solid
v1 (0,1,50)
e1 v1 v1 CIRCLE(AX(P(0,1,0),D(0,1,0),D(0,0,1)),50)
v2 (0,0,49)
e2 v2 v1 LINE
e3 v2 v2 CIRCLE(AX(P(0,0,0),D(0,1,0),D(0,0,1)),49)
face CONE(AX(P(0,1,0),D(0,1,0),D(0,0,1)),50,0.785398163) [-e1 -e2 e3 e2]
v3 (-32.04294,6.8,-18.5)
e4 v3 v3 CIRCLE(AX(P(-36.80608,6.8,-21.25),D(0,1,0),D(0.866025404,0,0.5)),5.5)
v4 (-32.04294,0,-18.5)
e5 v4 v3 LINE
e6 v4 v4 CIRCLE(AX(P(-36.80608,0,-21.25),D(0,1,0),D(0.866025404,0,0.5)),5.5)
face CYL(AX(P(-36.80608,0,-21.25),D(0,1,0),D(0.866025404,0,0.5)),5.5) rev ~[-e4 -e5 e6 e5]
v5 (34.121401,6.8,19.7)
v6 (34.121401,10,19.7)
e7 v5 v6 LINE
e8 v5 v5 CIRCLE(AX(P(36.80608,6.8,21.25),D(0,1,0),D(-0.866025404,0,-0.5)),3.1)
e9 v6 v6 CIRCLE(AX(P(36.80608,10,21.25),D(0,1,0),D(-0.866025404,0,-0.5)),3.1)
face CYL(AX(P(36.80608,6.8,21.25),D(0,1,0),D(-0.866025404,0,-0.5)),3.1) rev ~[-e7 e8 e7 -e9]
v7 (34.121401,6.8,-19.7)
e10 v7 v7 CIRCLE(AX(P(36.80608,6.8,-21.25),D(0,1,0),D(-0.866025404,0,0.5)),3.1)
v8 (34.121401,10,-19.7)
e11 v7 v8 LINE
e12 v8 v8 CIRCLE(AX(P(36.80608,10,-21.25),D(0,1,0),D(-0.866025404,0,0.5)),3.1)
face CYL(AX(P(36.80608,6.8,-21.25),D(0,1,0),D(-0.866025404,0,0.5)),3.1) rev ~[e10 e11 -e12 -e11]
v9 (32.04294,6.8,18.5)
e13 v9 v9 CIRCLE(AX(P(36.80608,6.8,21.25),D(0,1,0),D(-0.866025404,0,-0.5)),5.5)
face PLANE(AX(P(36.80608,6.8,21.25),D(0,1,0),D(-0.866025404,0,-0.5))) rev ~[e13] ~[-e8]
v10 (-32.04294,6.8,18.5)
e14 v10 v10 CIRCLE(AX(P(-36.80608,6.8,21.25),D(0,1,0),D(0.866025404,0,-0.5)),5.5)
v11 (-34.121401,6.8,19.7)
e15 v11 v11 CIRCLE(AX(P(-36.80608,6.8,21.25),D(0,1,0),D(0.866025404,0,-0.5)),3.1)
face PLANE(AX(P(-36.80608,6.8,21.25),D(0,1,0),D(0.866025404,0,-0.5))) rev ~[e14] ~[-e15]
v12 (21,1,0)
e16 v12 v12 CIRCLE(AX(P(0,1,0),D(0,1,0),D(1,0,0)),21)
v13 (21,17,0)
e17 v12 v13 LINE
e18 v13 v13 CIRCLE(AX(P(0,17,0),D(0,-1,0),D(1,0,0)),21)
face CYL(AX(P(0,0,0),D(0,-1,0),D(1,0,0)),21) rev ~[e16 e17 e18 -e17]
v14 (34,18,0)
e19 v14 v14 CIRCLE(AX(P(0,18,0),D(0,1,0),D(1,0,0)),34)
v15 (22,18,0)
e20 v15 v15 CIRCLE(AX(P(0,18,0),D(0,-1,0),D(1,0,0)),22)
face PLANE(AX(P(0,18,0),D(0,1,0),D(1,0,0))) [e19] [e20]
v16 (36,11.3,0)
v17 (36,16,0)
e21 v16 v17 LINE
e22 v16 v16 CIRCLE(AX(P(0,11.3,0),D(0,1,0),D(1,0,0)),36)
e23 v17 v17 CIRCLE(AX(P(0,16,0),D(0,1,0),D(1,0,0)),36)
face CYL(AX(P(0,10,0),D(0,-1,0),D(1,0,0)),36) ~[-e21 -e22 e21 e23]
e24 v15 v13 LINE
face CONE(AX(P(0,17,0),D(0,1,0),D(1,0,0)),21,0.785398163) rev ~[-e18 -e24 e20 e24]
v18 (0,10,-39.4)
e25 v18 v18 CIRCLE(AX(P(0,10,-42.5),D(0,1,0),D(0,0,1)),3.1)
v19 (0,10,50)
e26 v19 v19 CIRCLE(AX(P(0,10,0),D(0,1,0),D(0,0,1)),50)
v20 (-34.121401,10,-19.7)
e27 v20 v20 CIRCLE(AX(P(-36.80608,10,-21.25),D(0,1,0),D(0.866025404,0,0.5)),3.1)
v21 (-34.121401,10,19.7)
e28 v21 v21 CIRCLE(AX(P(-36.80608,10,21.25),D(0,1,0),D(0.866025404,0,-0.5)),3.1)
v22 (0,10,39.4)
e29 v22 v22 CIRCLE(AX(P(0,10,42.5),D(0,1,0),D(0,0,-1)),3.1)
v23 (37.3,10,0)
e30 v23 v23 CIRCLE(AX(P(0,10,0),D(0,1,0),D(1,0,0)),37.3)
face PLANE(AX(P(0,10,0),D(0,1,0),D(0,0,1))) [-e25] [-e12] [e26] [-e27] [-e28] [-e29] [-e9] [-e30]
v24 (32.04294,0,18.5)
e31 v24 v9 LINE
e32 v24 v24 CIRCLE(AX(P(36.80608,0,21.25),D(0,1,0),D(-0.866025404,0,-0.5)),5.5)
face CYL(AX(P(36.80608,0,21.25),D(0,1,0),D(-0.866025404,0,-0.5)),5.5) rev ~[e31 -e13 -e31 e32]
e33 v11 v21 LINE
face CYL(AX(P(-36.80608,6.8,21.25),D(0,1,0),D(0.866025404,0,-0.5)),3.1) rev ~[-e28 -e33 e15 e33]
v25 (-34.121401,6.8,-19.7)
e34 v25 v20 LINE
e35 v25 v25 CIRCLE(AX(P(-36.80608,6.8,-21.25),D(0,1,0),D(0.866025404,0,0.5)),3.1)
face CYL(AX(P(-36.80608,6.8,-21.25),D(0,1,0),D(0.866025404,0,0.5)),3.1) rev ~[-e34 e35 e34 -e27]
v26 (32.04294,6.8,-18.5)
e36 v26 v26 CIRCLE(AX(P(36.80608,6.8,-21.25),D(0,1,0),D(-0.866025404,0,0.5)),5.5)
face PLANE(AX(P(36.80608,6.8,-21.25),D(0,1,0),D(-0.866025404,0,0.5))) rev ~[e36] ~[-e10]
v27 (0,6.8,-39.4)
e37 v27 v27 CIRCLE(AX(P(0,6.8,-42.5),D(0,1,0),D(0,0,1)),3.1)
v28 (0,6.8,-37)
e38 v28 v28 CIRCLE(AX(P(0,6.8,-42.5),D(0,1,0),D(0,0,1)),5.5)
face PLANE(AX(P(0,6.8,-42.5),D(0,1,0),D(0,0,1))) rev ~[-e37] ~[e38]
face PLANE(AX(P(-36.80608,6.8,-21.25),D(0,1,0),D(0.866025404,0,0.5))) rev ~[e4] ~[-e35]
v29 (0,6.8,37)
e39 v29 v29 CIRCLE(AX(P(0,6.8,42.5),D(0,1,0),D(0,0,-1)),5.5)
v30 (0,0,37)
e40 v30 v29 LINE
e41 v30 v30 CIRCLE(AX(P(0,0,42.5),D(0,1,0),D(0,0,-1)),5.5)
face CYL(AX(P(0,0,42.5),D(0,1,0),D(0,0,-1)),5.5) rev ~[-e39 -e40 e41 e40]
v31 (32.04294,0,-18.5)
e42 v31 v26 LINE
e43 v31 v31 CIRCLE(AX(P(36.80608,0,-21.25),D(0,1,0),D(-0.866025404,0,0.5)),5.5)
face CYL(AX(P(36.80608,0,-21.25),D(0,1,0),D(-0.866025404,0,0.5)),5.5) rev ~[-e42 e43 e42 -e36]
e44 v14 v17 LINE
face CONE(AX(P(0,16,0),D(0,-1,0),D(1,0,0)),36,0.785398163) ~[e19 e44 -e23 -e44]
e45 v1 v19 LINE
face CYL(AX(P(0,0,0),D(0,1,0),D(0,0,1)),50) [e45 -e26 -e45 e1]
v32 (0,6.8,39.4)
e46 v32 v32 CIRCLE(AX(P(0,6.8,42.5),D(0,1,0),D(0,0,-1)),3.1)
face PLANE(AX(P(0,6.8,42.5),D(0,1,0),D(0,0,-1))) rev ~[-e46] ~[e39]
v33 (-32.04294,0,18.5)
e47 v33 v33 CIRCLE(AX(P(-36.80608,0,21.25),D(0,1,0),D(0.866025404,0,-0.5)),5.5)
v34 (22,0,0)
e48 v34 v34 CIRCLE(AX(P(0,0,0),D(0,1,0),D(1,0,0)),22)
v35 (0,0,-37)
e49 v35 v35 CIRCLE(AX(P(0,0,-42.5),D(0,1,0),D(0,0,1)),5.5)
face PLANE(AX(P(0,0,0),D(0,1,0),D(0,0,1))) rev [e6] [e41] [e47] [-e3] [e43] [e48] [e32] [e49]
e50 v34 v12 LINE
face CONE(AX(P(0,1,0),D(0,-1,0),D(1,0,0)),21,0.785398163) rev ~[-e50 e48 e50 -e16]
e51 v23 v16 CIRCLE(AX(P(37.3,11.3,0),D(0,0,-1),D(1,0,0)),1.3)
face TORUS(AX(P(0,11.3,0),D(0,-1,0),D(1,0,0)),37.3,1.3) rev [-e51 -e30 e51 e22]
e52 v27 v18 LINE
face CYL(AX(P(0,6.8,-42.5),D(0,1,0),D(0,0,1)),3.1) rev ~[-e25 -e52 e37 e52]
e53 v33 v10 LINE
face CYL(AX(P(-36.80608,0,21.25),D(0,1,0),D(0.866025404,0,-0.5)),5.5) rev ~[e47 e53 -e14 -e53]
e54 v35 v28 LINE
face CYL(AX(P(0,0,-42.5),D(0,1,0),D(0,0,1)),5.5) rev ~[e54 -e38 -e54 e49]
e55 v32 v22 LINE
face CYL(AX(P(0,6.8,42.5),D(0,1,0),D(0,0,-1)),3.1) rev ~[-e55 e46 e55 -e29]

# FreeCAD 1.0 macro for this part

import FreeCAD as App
import Part
import Sketcher

V = App.Vector
Q = App.Units.Quantity


def edges_at(feature, points):
    """Names of the edges that pass closest to the given points."""
    edges = feature.Shape.Edges
    near = lambda p: min(range(len(edges)), key=lambda i: edges[i].distToShape(Part.Vertex(*p))[0])
    return sorted({f"Edge{near(p) + 1}" for p in points})

doc = App.newDocument("Part")
body = doc.addObject("PartDesign::Body", "Body")

sketch1 = body.newObject("Sketcher::SketchObject", "Sketch")
sketch1.AttachmentSupport = (doc.getObject("XY_Plane"), [""])
sketch1.MapMode = "FlatFace"
sketch1.addGeometry([
    Part.LineSegment(V(16, 5, 0), V(0, 5, 0)),
    Part.LineSegment(V(0, 5, 0), V(0, 0, 0)),
    Part.LineSegment(V(0, 0, 0), V(36, 0, 0)),
    Part.LineSegment(V(36, 0, 0), V(36, 10, 0)),
    Part.LineSegment(V(36, 10, 0), V(16, 10, 0)),
    Part.LineSegment(V(16, 10, 0), V(16, 5, 0)),
], False)
sketch1.addConstraint([
    Sketcher.Constraint("Coincident", 0, 2, 1, 1),
    Sketcher.Constraint("Coincident", 1, 2, 2, 1),
    Sketcher.Constraint("Coincident", 2, 2, 3, 1),
    Sketcher.Constraint("Coincident", 3, 2, 4, 1),
    Sketcher.Constraint("Coincident", 4, 2, 5, 1),
    Sketcher.Constraint("Coincident", 5, 2, 0, 1),
    Sketcher.Constraint("Horizontal", 0),
    Sketcher.Constraint("Vertical", 1),
    Sketcher.Constraint("Horizontal", 2),
    Sketcher.Constraint("Vertical", 3),
    Sketcher.Constraint("Horizontal", 4),
    Sketcher.Constraint("Vertical", 5),
    Sketcher.Constraint("Coincident", 1, 2, -1, 1),
    Sketcher.Constraint("Equal", 1, 5),
    Sketcher.Constraint("DistanceX", 2, 1, 2, 2, Q("36 mm")),
    Sketcher.Constraint("DistanceX", 4, 2, 4, 1, Q("20 mm")),
    Sketcher.Constraint("DistanceY", 1, 2, 1, 1, Q("5 mm")),
])
revolution = body.newObject("PartDesign::Revolution", "Revolution")
revolution.Profile = sketch1
revolution.ReferenceAxis = (sketch1, ["V_Axis"])
revolution.Angle = 360

sketch2 = body.newObject("Sketcher::SketchObject", "Sketch001")
sketch2.AttachmentSupport = (doc.getObject("YZ_Plane"), [""])
sketch2.MapMode = "FlatFace"
sketch2.addGeometry([
    Part.LineSegment(V(0, 0, 0), V(10, 0, 0)),
    Part.LineSegment(V(10, 0, 0), V(10, 50, 0)),
    Part.LineSegment(V(10, 50, 0), V(0, 50, 0)),
    Part.LineSegment(V(0, 50, 0), V(0, 0, 0)),
], False)
sketch2.addConstraint([
    Sketcher.Constraint("Coincident", 0, 2, 1, 1),
    Sketcher.Constraint("Coincident", 1, 2, 2, 1),
    Sketcher.Constraint("Coincident", 2, 2, 3, 1),
    Sketcher.Constraint("Coincident", 3, 2, 0, 1),
    Sketcher.Constraint("Horizontal", 0),
    Sketcher.Constraint("Vertical", 1),
    Sketcher.Constraint("Horizontal", 2),
    Sketcher.Constraint("Vertical", 3),
    Sketcher.Constraint("Coincident", 3, 2, -1, 1),
    Sketcher.Constraint("DistanceX", 0, 1, 0, 2, Q("10 mm")),
    Sketcher.Constraint("DistanceY", 1, 1, 1, 2, Q("50 mm")),
])
revolution2 = body.newObject("PartDesign::Revolution", "Revolution001")
revolution2.Profile = sketch2
revolution2.ReferenceAxis = (sketch2, ["H_Axis"])
revolution2.Angle = 360
doc.recompute()

chamfer = body.newObject("PartDesign::Chamfer", "Chamfer")
chamfer.Base = (revolution2, edges_at(revolution2, [(0, 0, -50)]))
chamfer.Size = 1

sketch3 = body.newObject("Sketcher::SketchObject", "Sketch002")
sketch3.AttachmentSupport = (doc.getObject("XZ_Plane"), [""])
sketch3.MapMode = "FlatFace"
sketch3.addGeometry(Part.Circle(V(0, 42.5, 0), V(0, 0, 1), 3.1), False)
sketch3.addConstraint([
    Sketcher.Constraint("PointOnObject", 0, 3, -2),
    Sketcher.Constraint("Diameter", 0, Q("6.2 mm")),
    Sketcher.Constraint("DistanceY", -1, 1, 0, 3, Q("42.5 mm")),
])
doc.recompute()
hole = body.newObject("PartDesign::Hole", "Hole")
hole.Profile = sketch3
hole.ThreadType = "None"
hole.Diameter = 6.2
hole.DepthType = "Dimension"
hole.Depth = 15
hole.DrillPoint = "Angled"
hole.DrillPointAngle = 118
hole.HoleCutType = "Counterbore"
hole.HoleCutDiameter = 11
hole.HoleCutDepth = 6.8
doc.recompute()

polarpattern = body.newObject("PartDesign::PolarPattern", "PolarPattern")
polarpattern.Originals = [hole]
polarpattern.Axis = (doc.getObject("Y_Axis"), [""])
polarpattern.Angle = 360
polarpattern.Occurrences = 6
body.Tip = polarpattern

sketch4 = body.newObject("Sketcher::SketchObject", "Sketch003")
sketch4.AttachmentSupport = (doc.getObject("XZ_Plane"), [""])
sketch4.MapMode = "FlatFace"
sketch4.AttachmentOffset = App.Placement(V(0, 0, -10), App.Rotation())
sketch4.addGeometry([
    Part.Circle(V(0, 0, 0), V(0, 0, 1), 36),
    Part.Circle(V(0, 0, 0), V(0, 0, 1), 16),
], False)
sketch4.addConstraint([
    Sketcher.Constraint("Coincident", 0, 3, -1, 1),
    Sketcher.Constraint("Coincident", 1, 3, -1, 1),
    Sketcher.Constraint("Diameter", 0, Q("72 mm")),
    Sketcher.Constraint("Diameter", 1, Q("32 mm")),
])
pad1 = body.newObject("PartDesign::Pad", "Pad")
pad1.Profile = sketch4
pad1.Length = 8
pad1.Reversed = True
doc.recompute()

fillet = body.newObject("PartDesign::Fillet", "Fillet")
fillet.Base = (pad1, edges_at(pad1, [(-36, 10, 0)]))
fillet.Radius = 1.3

sketch5 = body.newObject("Sketcher::SketchObject", "Sketch004")
sketch5.AttachmentSupport = (doc.getObject("XZ_Plane"), [""])
sketch5.MapMode = "FlatFace"
sketch5.addGeometry(Part.Circle(V(0, 0, 0), V(0, 0, 1), 21), False)
sketch5.addConstraint([
    Sketcher.Constraint("Coincident", 0, 3, -1, 1),
    Sketcher.Constraint("Diameter", 0, Q("42 mm")),
])
pocket1 = body.newObject("PartDesign::Pocket", "Pocket")
pocket1.Profile = sketch5
pocket1.Length = 50
doc.recompute()

chamfer2 = body.newObject("PartDesign::Chamfer", "Chamfer001")
chamfer2.Base = (pocket1, edges_at(pocket1, [(-21, 0, 0), (-21, 18, 0)]))
chamfer2.Size = 1
doc.recompute()

chamfer3 = body.newObject("PartDesign::Chamfer", "Chamfer002")
chamfer3.Base = (chamfer2, edges_at(chamfer2, [(-36, 18, 0)]))
chamfer3.Size = 2

doc.recompute()
